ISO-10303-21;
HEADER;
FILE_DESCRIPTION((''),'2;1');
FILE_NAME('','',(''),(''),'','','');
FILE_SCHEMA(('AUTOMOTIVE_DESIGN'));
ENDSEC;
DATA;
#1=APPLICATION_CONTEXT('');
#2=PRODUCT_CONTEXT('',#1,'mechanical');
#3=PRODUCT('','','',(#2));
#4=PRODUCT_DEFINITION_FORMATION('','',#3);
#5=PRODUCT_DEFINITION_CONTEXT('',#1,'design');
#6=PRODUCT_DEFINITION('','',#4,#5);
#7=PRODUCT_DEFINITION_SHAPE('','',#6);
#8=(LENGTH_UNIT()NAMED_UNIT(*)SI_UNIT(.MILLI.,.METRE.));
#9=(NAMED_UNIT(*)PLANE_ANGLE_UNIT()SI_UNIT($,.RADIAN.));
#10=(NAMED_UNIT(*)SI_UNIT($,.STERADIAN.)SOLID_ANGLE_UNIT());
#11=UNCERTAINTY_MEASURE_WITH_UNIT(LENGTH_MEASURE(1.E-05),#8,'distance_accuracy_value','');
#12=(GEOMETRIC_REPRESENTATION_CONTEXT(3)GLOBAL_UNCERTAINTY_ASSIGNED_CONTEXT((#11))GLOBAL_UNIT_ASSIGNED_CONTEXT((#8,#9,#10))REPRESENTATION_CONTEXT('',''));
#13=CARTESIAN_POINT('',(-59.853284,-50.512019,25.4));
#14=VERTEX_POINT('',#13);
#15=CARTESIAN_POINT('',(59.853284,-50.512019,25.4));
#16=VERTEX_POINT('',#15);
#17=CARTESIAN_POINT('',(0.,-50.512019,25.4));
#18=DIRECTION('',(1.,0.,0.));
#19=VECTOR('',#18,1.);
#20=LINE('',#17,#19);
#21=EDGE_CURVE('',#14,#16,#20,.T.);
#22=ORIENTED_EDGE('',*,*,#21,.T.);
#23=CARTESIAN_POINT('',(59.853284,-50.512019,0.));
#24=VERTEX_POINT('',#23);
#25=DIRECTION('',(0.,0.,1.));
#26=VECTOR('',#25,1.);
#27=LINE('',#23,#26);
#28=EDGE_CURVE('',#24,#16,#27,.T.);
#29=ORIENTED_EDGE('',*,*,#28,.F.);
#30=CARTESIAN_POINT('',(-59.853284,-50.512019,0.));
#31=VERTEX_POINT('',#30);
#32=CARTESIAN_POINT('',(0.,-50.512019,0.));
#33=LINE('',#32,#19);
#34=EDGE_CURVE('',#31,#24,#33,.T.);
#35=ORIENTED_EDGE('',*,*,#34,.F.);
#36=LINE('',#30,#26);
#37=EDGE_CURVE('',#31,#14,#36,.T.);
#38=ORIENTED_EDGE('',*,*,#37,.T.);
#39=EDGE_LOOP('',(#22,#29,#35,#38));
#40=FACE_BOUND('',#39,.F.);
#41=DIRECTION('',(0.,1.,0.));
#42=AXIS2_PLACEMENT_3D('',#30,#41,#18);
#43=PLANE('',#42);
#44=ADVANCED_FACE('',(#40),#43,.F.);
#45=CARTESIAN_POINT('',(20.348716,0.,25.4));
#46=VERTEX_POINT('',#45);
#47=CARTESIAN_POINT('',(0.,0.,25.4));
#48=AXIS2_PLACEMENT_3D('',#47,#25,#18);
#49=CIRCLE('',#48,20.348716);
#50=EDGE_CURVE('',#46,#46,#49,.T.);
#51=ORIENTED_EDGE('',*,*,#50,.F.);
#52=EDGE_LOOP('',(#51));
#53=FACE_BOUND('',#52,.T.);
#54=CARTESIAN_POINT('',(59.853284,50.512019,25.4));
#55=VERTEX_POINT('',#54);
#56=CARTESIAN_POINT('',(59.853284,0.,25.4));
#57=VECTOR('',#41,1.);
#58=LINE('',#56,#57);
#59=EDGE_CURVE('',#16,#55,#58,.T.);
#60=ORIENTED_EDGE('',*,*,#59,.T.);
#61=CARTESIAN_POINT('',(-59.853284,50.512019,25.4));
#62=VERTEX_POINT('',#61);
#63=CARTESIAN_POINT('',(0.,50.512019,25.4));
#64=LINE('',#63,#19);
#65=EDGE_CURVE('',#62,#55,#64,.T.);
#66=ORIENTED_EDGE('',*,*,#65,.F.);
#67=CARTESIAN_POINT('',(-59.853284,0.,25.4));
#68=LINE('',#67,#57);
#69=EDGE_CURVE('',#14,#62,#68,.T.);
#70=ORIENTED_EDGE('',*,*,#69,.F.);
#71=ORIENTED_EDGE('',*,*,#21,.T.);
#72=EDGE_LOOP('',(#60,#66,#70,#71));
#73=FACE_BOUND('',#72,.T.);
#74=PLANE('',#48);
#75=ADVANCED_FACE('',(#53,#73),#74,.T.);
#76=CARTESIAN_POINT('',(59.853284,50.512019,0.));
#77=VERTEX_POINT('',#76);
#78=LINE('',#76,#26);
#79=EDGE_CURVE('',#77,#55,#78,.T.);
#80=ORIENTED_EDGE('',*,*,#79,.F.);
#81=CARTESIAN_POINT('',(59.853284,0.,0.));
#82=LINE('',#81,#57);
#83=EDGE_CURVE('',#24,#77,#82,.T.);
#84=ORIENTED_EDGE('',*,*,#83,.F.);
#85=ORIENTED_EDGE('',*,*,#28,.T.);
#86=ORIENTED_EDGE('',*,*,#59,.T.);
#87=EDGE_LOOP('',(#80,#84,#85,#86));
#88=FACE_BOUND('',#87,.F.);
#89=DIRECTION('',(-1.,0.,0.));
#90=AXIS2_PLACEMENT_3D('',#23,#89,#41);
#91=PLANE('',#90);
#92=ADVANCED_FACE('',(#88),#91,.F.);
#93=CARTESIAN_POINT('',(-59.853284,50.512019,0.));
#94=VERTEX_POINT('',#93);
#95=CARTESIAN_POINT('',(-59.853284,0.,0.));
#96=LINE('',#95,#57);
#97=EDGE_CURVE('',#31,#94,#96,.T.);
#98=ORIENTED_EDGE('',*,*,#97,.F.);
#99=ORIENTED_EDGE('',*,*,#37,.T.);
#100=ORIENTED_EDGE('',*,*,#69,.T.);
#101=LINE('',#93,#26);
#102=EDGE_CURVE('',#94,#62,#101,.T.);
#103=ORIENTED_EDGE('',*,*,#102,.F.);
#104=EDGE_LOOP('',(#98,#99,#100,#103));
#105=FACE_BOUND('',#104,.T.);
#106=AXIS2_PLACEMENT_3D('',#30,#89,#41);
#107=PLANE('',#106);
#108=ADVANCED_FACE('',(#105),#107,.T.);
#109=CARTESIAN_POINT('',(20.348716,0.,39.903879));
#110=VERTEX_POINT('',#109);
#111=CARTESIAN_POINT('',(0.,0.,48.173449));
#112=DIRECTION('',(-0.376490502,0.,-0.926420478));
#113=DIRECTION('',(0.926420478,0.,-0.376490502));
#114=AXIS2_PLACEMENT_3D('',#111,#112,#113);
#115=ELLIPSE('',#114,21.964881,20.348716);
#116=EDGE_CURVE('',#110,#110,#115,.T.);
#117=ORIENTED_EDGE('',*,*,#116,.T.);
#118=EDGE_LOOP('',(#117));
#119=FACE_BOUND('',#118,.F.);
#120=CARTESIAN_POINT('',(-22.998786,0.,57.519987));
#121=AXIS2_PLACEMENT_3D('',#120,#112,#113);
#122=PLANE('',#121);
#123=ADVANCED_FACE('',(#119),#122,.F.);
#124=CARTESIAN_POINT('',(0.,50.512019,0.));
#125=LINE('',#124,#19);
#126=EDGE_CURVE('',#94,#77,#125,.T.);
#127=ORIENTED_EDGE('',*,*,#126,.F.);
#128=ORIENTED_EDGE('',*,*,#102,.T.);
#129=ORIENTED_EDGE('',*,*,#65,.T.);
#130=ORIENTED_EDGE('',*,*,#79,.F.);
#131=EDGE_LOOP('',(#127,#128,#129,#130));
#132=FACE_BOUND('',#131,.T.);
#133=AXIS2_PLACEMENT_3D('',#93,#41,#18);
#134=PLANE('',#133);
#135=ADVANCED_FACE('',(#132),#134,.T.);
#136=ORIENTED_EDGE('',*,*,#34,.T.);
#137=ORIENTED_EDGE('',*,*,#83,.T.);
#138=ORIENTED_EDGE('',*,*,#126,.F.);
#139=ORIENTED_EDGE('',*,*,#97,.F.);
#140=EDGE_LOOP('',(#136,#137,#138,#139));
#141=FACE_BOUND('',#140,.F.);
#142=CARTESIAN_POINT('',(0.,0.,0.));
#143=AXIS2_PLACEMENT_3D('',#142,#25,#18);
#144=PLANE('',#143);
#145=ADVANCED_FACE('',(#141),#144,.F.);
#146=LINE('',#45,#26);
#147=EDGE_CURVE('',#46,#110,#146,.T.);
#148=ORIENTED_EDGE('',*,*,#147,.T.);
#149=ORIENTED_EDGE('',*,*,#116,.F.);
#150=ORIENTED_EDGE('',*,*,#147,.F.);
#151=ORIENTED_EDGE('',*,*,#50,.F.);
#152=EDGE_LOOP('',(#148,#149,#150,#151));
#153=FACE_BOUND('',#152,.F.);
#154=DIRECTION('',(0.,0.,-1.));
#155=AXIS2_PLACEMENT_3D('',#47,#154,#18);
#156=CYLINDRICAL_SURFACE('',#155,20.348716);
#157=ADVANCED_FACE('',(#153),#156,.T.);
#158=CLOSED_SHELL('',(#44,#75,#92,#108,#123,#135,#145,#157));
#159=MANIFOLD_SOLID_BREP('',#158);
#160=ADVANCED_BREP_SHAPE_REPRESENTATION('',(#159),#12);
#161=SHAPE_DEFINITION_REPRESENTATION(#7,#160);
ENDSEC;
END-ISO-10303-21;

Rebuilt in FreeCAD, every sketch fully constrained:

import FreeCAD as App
import Part
import Sketcher

V = App.Vector
Q = App.Units.Quantity


def add_polygon(sketch, points):
    """Adds a closed chain of lines whose ends are joined by coincident constraints."""
    first, n = sketch.GeometryCount, len(points)
    for a, b in zip(points, points[1:] + points[:1]):
        sketch.addGeometry(Part.LineSegment(App.Vector(*a, 0), App.Vector(*b, 0)), False)
    for i in range(n):
        sketch.addConstraint(Sketcher.Constraint("Coincident", first + i, 2, first + (i + 1) % n, 1))

doc = App.newDocument("Part")
params = doc.addObject("Spreadsheet::Sheet", "Params")
for row, (alias, value) in enumerate([
    ("pad1_length", "1 in"),
    ("pad2_length", "1.26 in"),
    ("pocket1_length", "5 in"),
], start=1):
    params.set(f"A{row}", alias)
    params.set(f"B{row}", "=" + value)
    params.setAlias(f"B{row}", alias)

body = doc.addObject("PartDesign::Body", "Body")

sketch1 = doc.addObject("Sketcher::SketchObject", "Sketch")
body.addObject(sketch1)
sketch1.AttachmentSupport = (doc.XY_Plane, [""])
sketch1.MapMode = "FlatFace"
add_polygon(sketch1, [(-60, 51), (-60, -51), (60, -51), (60, 51)])
sketch1.addConstraint([
    Sketcher.Constraint("Vertical", 0),
    Sketcher.Constraint("Horizontal", 1),
    Sketcher.Constraint("Vertical", 2),
    Sketcher.Constraint("Horizontal", 3),
    Sketcher.Constraint("Symmetric", 0, 2, 2, 2, -1, 1),
    Sketcher.Constraint("DistanceX", 1, 1, 1, 2, Q("119.706568 mm")),
    Sketcher.Constraint("DistanceY", 0, 2, 0, 1, Q("101.024038 mm")),
])
pad1 = doc.addObject("PartDesign::Pad", "Pad")
body.addObject(pad1)
pad1.Profile = sketch1
pad1.setExpression("Length", "Params.pad1_length")

sketch2 = doc.addObject("Sketcher::SketchObject", "Sketch001")
body.addObject(sketch2)
sketch2.AttachmentSupport = (doc.XY_Plane, [""])
sketch2.MapMode = "FlatFace"
sketch2.AttachmentOffset = App.Placement(V(0, 0, 1 * 25.4), App.Rotation())
sketch2.addGeometry(Part.Circle(V(0, 0, 0), V(0, 0, 1), 20), False)
sketch2.addConstraint([
    Sketcher.Constraint("Coincident", 0, 3, -1, 1),
    Sketcher.Constraint("Diameter", 0, Q("40.697432 mm")),
])
pad2 = doc.addObject("PartDesign::Pad", "Pad001")
body.addObject(pad2)
pad2.Profile = sketch2
pad2.setExpression("Length", "Params.pad2_length")

sketch3 = doc.addObject("Sketcher::SketchObject", "Sketch002")
body.addObject(sketch3)
sketch3.AttachmentSupport = (doc.XZ_Plane, [""])
sketch3.MapMode = "FlatFace"
add_polygon(sketch3, [(25, 58), (-23, 58), (25, 38)])
sketch3.addConstraint([
    Sketcher.Constraint("Horizontal", 0),
    Sketcher.Constraint("Vertical", 2),
    Sketcher.Constraint("DistanceX", 0, 2, 0, 1, Q("47.730867 mm")),
    Sketcher.Constraint("DistanceY", 2, 1, 2, 2, Q("19.397475 mm")),
    Sketcher.Constraint("DistanceX", -1, 1, 1, 2, Q("24.732081 mm")),
    Sketcher.Constraint("DistanceY", -1, 1, 0, 2, Q("57.519987 mm")),
])
pocket1 = doc.addObject("PartDesign::Pocket", "Pocket")
body.addObject(pocket1)
pocket1.Profile = sketch3
pocket1.setExpression("Length", "Params.pocket1_length")
pocket1.Midplane = True

doc.recompute()
